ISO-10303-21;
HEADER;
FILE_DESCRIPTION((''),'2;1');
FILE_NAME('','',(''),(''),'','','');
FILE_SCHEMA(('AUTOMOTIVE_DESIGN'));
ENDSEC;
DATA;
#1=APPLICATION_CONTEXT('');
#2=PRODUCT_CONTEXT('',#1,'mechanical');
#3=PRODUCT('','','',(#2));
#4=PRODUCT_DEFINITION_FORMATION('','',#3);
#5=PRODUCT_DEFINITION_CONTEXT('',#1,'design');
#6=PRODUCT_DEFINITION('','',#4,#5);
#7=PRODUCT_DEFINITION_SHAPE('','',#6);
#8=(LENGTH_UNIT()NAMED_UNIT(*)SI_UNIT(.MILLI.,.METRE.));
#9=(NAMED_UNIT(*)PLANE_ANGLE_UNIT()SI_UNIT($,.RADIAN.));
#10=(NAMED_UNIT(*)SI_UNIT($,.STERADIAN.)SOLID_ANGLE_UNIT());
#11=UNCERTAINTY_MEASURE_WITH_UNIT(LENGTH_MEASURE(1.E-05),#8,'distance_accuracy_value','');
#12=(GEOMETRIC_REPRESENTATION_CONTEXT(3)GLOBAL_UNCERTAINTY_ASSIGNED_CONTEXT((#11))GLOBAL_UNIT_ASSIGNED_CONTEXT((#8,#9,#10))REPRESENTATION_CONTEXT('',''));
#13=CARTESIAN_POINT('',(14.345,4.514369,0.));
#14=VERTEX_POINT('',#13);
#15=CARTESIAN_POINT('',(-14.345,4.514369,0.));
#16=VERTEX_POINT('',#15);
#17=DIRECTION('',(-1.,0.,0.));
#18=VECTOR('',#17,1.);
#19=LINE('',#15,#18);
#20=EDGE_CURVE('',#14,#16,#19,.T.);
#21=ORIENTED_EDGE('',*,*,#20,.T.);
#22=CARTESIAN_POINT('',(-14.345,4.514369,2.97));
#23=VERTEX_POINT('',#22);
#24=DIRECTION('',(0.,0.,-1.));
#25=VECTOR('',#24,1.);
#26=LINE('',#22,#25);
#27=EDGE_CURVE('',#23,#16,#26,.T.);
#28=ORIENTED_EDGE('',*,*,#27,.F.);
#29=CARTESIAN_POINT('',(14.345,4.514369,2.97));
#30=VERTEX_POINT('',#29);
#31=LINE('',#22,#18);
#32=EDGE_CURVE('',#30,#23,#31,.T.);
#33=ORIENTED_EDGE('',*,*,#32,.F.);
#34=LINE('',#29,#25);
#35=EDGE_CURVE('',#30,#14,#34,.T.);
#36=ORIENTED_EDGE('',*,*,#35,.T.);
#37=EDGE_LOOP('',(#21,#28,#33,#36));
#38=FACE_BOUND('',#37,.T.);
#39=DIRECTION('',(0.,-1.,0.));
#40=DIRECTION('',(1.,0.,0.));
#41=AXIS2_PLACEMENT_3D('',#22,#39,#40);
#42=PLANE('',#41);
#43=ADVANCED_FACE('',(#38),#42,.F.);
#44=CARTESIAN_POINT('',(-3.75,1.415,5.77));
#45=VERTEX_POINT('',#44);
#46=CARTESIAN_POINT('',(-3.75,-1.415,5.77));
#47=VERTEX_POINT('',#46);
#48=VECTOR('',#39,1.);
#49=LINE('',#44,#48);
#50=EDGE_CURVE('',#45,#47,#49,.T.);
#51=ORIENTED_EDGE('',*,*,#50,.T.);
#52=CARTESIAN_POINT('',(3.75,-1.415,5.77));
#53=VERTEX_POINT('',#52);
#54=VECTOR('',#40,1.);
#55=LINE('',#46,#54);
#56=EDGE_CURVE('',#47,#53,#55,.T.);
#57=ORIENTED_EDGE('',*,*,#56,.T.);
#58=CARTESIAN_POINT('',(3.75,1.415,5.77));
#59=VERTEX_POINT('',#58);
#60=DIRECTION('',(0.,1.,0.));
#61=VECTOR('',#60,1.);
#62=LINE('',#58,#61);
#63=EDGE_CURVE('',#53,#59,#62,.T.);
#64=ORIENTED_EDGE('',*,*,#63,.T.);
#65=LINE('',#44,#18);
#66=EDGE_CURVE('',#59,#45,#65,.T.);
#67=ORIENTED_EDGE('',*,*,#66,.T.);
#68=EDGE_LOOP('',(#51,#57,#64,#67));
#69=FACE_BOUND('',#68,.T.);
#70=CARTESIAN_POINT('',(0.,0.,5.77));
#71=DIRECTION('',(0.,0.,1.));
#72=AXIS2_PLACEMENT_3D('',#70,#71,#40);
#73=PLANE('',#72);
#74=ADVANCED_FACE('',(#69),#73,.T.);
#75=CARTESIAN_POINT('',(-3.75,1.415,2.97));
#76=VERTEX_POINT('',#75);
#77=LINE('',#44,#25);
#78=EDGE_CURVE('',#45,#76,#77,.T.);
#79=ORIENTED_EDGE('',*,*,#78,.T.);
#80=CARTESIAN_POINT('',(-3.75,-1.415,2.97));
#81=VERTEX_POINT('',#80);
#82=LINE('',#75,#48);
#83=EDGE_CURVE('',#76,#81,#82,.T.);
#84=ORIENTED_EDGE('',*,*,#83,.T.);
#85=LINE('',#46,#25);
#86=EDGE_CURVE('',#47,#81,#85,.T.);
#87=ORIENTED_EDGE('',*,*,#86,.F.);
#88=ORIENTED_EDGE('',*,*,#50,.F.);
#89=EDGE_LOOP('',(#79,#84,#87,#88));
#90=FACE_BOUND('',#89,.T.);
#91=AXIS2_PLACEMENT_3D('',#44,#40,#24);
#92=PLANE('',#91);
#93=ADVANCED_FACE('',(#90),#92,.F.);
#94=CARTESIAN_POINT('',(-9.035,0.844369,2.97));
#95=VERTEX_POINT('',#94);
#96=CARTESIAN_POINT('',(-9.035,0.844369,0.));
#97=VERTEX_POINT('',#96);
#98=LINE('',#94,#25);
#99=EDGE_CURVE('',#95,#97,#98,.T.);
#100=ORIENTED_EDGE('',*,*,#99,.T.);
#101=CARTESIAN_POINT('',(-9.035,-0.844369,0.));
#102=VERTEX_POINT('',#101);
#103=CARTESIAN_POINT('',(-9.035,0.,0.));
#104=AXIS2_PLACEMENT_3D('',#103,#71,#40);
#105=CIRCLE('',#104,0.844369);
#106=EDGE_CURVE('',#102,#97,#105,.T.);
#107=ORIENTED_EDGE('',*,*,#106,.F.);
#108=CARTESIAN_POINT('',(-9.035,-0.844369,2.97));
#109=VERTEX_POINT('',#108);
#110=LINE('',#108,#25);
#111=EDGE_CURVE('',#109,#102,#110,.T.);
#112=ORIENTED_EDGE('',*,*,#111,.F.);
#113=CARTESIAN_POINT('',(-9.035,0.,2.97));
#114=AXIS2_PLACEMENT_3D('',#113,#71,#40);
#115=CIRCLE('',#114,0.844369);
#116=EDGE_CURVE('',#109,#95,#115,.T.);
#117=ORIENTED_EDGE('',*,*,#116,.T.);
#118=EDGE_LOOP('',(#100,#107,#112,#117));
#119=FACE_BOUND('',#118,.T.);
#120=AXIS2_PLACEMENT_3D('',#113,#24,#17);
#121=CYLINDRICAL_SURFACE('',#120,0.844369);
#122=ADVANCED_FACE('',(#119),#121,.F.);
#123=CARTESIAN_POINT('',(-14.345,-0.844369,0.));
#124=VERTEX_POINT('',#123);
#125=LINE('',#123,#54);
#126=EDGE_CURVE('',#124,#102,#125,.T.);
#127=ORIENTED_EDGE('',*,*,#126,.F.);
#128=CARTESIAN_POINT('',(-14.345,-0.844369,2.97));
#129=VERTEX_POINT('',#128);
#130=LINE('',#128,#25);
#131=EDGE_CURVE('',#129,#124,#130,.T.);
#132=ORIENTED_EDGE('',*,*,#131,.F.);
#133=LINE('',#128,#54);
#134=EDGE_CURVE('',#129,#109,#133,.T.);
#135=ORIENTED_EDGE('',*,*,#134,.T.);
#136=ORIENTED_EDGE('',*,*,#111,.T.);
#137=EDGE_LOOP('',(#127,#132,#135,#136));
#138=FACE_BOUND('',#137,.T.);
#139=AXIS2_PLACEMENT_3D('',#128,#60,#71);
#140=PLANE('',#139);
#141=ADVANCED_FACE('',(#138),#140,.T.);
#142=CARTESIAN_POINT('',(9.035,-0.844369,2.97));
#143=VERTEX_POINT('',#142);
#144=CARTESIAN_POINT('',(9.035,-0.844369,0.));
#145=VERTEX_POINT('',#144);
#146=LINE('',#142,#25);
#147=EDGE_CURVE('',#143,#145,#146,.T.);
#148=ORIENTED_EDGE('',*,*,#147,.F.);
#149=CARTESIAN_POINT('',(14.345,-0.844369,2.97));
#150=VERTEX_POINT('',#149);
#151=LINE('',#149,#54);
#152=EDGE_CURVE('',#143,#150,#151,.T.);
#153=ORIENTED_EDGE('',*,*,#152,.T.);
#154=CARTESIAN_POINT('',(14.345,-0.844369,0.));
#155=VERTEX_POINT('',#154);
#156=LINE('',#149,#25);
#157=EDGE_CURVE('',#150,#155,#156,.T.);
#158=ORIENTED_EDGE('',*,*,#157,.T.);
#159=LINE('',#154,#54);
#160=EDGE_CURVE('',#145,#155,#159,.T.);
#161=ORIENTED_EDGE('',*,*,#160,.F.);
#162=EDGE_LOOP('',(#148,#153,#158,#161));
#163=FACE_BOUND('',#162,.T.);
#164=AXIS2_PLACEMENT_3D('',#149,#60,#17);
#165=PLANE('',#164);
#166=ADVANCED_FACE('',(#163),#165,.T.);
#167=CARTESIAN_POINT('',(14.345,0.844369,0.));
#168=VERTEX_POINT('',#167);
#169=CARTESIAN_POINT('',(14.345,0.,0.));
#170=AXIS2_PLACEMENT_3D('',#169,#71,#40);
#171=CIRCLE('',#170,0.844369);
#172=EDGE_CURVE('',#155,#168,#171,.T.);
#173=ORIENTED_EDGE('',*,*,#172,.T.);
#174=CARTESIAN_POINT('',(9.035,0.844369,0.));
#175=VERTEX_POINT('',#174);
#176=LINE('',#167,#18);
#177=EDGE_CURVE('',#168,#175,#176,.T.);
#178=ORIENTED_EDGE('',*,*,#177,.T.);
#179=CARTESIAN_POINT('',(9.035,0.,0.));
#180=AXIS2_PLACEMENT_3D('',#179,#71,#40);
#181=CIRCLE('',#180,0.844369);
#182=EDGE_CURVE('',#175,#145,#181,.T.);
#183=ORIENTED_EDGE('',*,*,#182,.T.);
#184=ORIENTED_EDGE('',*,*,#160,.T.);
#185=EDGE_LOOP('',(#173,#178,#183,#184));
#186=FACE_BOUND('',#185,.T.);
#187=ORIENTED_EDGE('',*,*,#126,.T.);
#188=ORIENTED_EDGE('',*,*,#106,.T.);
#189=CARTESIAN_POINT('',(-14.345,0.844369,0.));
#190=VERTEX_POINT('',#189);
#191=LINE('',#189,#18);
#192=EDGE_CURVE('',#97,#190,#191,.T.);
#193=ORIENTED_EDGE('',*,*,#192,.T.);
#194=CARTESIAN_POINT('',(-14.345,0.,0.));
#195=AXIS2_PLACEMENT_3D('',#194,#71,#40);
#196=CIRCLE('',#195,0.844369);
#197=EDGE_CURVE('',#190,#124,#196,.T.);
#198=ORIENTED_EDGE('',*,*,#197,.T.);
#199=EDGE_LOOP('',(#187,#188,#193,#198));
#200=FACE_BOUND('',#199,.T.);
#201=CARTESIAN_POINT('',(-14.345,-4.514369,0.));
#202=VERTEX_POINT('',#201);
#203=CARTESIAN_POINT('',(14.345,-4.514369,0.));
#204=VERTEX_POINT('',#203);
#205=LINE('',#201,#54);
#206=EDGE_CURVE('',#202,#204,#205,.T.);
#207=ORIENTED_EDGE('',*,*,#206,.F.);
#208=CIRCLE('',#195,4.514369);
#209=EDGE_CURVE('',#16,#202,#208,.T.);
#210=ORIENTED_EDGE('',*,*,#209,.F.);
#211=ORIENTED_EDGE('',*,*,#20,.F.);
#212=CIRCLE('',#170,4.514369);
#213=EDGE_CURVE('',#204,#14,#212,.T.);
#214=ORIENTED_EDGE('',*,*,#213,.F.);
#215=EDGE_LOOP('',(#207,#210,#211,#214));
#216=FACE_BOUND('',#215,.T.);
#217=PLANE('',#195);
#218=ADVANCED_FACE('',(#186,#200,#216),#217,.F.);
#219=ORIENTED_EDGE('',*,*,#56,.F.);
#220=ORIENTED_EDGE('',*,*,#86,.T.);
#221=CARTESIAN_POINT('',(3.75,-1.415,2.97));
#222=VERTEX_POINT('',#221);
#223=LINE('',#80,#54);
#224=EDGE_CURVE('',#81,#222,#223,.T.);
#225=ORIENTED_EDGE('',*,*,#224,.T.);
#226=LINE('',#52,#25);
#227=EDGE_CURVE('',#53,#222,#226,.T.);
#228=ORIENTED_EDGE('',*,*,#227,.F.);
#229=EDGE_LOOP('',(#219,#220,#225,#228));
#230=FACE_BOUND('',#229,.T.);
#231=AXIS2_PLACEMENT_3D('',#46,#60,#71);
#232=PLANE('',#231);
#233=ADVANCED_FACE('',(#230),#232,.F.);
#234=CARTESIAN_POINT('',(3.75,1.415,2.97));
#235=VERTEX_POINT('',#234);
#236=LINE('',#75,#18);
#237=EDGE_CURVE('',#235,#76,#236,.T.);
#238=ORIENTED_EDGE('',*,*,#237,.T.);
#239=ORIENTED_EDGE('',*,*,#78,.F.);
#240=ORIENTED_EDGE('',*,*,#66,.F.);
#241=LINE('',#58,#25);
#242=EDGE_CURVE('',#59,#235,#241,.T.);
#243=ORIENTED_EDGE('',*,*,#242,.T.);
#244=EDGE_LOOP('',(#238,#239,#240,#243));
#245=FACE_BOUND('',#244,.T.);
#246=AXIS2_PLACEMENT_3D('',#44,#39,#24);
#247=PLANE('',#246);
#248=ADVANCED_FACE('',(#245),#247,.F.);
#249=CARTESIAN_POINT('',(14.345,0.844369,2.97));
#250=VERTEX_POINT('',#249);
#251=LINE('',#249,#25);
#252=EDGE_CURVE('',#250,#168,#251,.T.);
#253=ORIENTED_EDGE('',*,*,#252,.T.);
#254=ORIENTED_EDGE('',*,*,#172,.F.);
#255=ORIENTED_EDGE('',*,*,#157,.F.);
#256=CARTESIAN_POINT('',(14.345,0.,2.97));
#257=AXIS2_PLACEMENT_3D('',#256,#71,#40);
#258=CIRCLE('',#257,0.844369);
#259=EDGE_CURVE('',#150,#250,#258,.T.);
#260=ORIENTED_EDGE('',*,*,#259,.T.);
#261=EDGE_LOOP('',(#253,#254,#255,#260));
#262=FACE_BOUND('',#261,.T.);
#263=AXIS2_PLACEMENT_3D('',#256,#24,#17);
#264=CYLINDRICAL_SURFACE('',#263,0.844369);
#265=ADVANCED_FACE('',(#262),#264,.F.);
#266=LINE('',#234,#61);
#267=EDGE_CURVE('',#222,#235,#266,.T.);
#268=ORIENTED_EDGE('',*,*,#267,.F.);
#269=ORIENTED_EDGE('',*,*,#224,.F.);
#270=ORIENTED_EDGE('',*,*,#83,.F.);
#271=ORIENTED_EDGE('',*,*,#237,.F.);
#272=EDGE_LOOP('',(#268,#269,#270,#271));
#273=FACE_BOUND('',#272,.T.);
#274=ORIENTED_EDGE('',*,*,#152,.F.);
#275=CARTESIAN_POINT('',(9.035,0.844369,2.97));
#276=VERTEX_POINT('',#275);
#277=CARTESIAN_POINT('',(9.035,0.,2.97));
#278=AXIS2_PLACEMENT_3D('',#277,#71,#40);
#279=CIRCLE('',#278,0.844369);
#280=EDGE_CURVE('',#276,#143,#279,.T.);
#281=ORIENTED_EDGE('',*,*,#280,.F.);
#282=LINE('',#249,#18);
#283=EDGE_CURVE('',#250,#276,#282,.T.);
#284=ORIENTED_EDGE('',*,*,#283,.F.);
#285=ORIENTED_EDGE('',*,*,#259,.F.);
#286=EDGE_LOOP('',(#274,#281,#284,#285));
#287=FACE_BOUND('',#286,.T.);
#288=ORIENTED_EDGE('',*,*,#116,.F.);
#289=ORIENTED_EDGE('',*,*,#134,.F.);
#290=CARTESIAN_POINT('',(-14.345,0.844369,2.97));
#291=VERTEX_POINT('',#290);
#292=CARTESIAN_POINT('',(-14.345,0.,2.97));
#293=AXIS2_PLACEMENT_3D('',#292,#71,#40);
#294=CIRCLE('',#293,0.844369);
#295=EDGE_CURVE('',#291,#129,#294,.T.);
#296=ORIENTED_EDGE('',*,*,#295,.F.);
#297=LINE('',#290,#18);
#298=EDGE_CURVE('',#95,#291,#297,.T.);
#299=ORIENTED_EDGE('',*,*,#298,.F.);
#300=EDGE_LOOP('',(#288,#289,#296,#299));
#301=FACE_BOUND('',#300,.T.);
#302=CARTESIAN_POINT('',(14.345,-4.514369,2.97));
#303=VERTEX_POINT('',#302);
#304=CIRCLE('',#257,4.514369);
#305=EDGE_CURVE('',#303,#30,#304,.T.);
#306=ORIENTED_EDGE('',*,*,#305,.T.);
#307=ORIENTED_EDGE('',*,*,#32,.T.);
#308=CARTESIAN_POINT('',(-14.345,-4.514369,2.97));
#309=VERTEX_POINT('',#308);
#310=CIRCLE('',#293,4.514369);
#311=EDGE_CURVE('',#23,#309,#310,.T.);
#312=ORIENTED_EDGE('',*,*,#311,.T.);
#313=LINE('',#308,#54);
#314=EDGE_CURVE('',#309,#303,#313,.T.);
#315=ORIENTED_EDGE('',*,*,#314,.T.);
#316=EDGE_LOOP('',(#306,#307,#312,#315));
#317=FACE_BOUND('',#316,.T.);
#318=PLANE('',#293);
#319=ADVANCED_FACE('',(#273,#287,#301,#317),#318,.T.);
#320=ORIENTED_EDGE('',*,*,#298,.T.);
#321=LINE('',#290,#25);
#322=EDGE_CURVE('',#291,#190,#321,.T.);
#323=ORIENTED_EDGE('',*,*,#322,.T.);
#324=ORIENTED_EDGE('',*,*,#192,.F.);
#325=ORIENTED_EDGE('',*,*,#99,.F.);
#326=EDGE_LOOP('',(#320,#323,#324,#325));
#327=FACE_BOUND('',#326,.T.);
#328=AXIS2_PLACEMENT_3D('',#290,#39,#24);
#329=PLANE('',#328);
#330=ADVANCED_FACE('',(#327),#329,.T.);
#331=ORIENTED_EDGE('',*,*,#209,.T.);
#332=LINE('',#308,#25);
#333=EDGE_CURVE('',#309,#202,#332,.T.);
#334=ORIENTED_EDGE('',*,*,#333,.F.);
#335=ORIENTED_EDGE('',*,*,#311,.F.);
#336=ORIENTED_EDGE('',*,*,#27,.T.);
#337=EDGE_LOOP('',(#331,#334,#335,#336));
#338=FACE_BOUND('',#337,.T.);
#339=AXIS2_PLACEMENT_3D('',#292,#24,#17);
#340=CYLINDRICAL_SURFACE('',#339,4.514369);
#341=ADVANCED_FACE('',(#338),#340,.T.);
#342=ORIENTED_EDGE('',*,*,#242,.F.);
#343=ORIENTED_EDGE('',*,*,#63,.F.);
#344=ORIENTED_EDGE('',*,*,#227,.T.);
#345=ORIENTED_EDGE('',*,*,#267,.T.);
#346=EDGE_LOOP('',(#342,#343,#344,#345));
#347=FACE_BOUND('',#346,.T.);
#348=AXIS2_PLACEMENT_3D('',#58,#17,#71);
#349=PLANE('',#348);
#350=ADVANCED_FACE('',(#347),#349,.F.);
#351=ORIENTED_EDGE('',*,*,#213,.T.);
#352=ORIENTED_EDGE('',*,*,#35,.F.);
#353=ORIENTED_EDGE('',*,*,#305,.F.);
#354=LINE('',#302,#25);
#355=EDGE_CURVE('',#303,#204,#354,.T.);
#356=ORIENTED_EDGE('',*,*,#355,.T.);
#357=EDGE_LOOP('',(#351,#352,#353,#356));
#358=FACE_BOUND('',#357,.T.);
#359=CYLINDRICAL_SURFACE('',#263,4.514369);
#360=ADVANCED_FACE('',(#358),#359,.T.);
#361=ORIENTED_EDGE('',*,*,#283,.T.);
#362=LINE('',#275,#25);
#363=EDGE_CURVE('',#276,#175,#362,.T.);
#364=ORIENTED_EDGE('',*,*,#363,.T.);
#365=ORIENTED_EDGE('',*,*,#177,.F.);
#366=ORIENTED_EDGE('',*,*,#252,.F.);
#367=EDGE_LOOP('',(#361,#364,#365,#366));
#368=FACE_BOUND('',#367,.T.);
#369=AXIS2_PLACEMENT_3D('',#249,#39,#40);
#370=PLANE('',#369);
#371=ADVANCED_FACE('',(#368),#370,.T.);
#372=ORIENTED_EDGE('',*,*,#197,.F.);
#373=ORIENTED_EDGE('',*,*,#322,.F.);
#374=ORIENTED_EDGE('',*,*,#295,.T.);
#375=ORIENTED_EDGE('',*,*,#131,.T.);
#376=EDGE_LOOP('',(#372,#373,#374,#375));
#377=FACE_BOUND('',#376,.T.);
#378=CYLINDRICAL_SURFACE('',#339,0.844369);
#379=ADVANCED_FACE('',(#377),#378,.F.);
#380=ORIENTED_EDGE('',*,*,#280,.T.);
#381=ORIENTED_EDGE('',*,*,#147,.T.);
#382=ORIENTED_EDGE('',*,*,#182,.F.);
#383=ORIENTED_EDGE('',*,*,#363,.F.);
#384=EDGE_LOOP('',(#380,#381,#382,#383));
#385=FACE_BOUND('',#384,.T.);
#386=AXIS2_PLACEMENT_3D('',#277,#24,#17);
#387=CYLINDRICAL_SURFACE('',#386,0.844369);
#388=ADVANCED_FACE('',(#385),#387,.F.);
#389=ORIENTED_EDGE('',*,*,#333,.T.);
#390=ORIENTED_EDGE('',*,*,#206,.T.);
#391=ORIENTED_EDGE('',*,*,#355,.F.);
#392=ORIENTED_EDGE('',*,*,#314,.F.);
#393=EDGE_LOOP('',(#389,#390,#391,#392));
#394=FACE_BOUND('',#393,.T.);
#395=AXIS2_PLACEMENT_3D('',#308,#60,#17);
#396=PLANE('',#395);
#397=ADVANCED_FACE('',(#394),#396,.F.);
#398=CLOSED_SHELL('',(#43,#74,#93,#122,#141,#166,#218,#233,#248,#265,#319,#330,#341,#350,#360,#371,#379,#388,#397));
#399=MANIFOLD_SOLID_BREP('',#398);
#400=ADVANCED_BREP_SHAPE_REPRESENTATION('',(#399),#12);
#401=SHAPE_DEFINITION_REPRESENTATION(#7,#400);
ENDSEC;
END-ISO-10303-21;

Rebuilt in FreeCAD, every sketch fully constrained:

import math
import FreeCAD as App
import Part
import Sketcher
Q = App.Units.Quantity


def add_polygon(sketch, points):
    """Adds a closed chain of lines whose ends are joined by coincident constraints."""
    first, n = sketch.GeometryCount, len(points)
    for a, b in zip(points, points[1:] + points[:1]):
        sketch.addGeometry(Part.LineSegment(App.Vector(*a, 0), App.Vector(*b, 0)), False)
    for i in range(n):
        sketch.addConstraint(Sketcher.Constraint("Coincident", first + i, 2, first + (i + 1) % n, 1))

doc = App.newDocument("Part")
body = doc.addObject("PartDesign::Body", "Body")

# Sketch on XY plane
sketch1 = body.newObject("Sketcher::SketchObject", "Sketch")
sketch1.AttachmentSupport = (doc.getObject("XY_Plane"), [""])
sketch1.MapMode = "FlatFace"
sketch1.addGeometry(Part.LineSegment(App.Vector(14.345, 4.514369, 0), App.Vector(-14.345, 4.514369, 0)), False)
sketch1.addGeometry(Part.ArcOfCircle(Part.Circle(App.Vector(-14.345, 0, 0), App.Vector(0, 0, 1), 4.514369), math.radians(90), math.radians(270)), False)
sketch1.addGeometry(Part.LineSegment(App.Vector(-14.345, -4.514369, 0), App.Vector(14.345, -4.514369, 0)), False)
sketch1.addGeometry(Part.ArcOfCircle(Part.Circle(App.Vector(14.345, 0, 0), App.Vector(0, 0, 1), 4.514369), math.radians(-90), math.radians(90)), False)
sketch1.addGeometry(Part.LineSegment(App.Vector(-14.345, 0.844369, 0), App.Vector(-9.035, 0.844369, 0)), False)
sketch1.addGeometry(Part.ArcOfCircle(Part.Circle(App.Vector(-9.035, 0, 0), App.Vector(0, 0, 1), 0.844369), math.radians(-90), math.radians(90)), False)
sketch1.addGeometry(Part.LineSegment(App.Vector(-9.035, -0.844369, 0), App.Vector(-14.345, -0.844369, 0)), False)
sketch1.addGeometry(Part.ArcOfCircle(Part.Circle(App.Vector(-14.345, 0, 0), App.Vector(0, 0, 1), 0.844369), math.radians(90), math.radians(270)), False)
sketch1.addGeometry(Part.LineSegment(App.Vector(14.345, -0.844369, 0), App.Vector(9.035, -0.844369, 0)), False)
sketch1.addGeometry(Part.ArcOfCircle(Part.Circle(App.Vector(9.035, 0, 0), App.Vector(0, 0, 1), 0.844369), math.radians(90), math.radians(270)), False)
sketch1.addGeometry(Part.LineSegment(App.Vector(9.035, 0.844369, 0), App.Vector(14.345, 0.844369, 0)), False)
sketch1.addGeometry(Part.ArcOfCircle(Part.Circle(App.Vector(14.345, 0, 0), App.Vector(0, 0, 1), 0.844369), math.radians(-90), math.radians(90)), False)
sketch1.addConstraint(Sketcher.Constraint("Tangent", 0, 2, 1, 1))
sketch1.addConstraint(Sketcher.Constraint("Tangent", 1, 2, 2, 1))
sketch1.addConstraint(Sketcher.Constraint("Tangent", 2, 2, 3, 1))
sketch1.addConstraint(Sketcher.Constraint("Tangent", 3, 2, 0, 1))
sketch1.addConstraint(Sketcher.Constraint("Tangent", 4, 2, 5, 2))
sketch1.addConstraint(Sketcher.Constraint("Tangent", 5, 1, 6, 1))
sketch1.addConstraint(Sketcher.Constraint("Tangent", 6, 2, 7, 2))
sketch1.addConstraint(Sketcher.Constraint("Tangent", 7, 1, 4, 1))
sketch1.addConstraint(Sketcher.Constraint("Tangent", 8, 2, 9, 2))
sketch1.addConstraint(Sketcher.Constraint("Tangent", 9, 1, 10, 1))
sketch1.addConstraint(Sketcher.Constraint("Tangent", 10, 2, 11, 2))
sketch1.addConstraint(Sketcher.Constraint("Tangent", 11, 1, 8, 1))
sketch1.addConstraint(Sketcher.Constraint("Horizontal", 0))
sketch1.addConstraint(Sketcher.Constraint("Horizontal", 2))
sketch1.addConstraint(Sketcher.Constraint("Horizontal", 4))
sketch1.addConstraint(Sketcher.Constraint("Horizontal", 6))
sketch1.addConstraint(Sketcher.Constraint("Horizontal", 8))
sketch1.addConstraint(Sketcher.Constraint("Horizontal", 10))
sketch1.addConstraint(Sketcher.Constraint("Coincident", 7, 3, 1, 3))
sketch1.addConstraint(Sketcher.Constraint("Coincident", 11, 3, 3, 3))
sketch1.addConstraint(Sketcher.Constraint("Equal", 7, 9))
sketch1.addConstraint(Sketcher.Constraint("Symmetric", 1, 3, 3, 3, -1, 1))
sketch1.addConstraint(Sketcher.Constraint("Equal", 6, 8))
sketch1.addConstraint(Sketcher.Constraint("DistanceX", 0, 2, 0, 1, Q("28.69 mm")))
sketch1.addConstraint(Sketcher.Constraint("DistanceX", 4, 1, 4, 2, Q("5.31 mm")))
sketch1.addConstraint(Sketcher.Constraint("Radius", 1, Q("4.514369 mm")))
sketch1.addConstraint(Sketcher.Constraint("Radius", 5, Q("0.844369 mm")))
pad1 = body.newObject("PartDesign::Pad", "Pad")
pad1.Profile = sketch1
pad1.Length = 2.97

# Sketch on XY plane
sketch2 = body.newObject("Sketcher::SketchObject", "Sketch001")
sketch2.AttachmentSupport = (doc.getObject("XY_Plane"), [""])
sketch2.MapMode = "FlatFace"
sketch2.AttachmentOffset = App.Placement(App.Vector(0, 0, 2.97), App.Rotation())
add_polygon(sketch2, [(-3.75, 1.415), (-3.75, -1.415), (3.75, -1.415), (3.75, 1.415)])  # lines 0-3
sketch2.addConstraint(Sketcher.Constraint("Vertical", 0))
sketch2.addConstraint(Sketcher.Constraint("Horizontal", 1))
sketch2.addConstraint(Sketcher.Constraint("Vertical", 2))
sketch2.addConstraint(Sketcher.Constraint("Horizontal", 3))
sketch2.addConstraint(Sketcher.Constraint("Symmetric", 0, 2, 2, 2, -1, 1))
sketch2.addConstraint(Sketcher.Constraint("DistanceX", 1, 1, 1, 2, Q("7.5 mm")))
sketch2.addConstraint(Sketcher.Constraint("DistanceY", 0, 2, 0, 1, Q("2.83 mm")))
pad2 = body.newObject("PartDesign::Pad", "Pad001")
pad2.Profile = sketch2
pad2.Length = 2.8

doc.recompute()
